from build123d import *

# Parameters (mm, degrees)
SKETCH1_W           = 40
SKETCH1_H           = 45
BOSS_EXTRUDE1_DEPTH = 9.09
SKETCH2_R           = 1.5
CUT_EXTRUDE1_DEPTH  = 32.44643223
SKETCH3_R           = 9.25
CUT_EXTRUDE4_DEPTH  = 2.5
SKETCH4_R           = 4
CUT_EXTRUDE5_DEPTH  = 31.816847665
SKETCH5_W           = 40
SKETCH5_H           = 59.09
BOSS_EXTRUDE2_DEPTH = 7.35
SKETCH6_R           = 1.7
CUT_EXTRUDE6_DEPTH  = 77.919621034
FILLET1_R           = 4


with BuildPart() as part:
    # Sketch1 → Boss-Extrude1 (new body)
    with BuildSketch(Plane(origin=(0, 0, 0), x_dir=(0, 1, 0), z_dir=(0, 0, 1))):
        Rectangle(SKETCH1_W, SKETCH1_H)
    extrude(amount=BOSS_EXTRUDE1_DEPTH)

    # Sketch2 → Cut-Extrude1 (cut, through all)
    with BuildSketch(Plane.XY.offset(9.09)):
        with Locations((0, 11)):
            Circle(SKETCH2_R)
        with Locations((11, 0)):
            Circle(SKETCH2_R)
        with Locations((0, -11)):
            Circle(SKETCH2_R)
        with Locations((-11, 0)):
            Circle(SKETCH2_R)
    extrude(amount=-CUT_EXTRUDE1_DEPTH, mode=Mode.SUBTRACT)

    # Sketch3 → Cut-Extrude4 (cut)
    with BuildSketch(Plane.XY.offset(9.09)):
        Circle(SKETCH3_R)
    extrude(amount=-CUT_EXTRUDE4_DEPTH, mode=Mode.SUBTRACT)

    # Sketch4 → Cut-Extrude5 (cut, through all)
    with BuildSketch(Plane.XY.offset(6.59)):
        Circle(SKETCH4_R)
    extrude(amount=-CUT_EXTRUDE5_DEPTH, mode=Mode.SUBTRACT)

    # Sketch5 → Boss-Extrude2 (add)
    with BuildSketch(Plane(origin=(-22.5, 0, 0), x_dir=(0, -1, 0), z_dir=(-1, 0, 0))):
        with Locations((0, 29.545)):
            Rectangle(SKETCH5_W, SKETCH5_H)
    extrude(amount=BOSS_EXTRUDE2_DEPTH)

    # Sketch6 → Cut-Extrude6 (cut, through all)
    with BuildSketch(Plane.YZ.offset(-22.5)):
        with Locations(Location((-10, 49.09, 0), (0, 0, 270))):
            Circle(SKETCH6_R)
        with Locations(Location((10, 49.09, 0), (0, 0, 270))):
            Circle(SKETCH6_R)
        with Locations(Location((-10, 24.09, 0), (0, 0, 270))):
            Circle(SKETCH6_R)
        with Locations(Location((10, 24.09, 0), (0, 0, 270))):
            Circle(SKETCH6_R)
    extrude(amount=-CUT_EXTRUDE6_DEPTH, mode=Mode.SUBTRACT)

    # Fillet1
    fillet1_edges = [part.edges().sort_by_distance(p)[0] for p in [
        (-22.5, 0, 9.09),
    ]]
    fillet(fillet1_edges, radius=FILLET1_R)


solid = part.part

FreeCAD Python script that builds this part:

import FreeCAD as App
import Part
import Sketcher
from FreeCAD import Vector
Q = App.Units.Quantity


def edges_at(feature, points):
    """Names of the edges that pass closest to the given points."""
    edges = feature.Shape.Edges
    near = lambda p: min(range(len(edges)), key=lambda i: edges[i].distToShape(Part.Vertex(*p))[0])
    return sorted({f"Edge{near(p) + 1}" for p in points})

doc = App.newDocument("Part")
body = doc.addObject("PartDesign::Body", "Body")

sketch1 = body.newObject("Sketcher::SketchObject", "Sketch")
sketch1.AttachmentSupport = (doc.getObject("XY_Plane"), [""])
sketch1.MapMode = "FlatFace"
sketch1.addGeometry([
    Part.LineSegment(Vector(-22, -20, 0), Vector(22, -20, 0)),
    Part.LineSegment(Vector(22, -20, 0), Vector(22, 20, 0)),
    Part.LineSegment(Vector(22, 20, 0), Vector(-22, 20, 0)),
    Part.LineSegment(Vector(-22, 20, 0), Vector(-22, -20, 0)),
], False)
sketch1.addConstraint([
    Sketcher.Constraint("Coincident", 0, 2, 1, 1),
    Sketcher.Constraint("Coincident", 1, 2, 2, 1),
    Sketcher.Constraint("Coincident", 2, 2, 3, 1),
    Sketcher.Constraint("Coincident", 3, 2, 0, 1),
    Sketcher.Constraint("Horizontal", 0),
    Sketcher.Constraint("Vertical", 1),
    Sketcher.Constraint("Horizontal", 2),
    Sketcher.Constraint("Vertical", 3),
    Sketcher.Constraint("Symmetric", 0, 2, 2, 2, -1, 1),
    Sketcher.Constraint("DistanceX", 0, 1, 0, 2, Q("45 mm")),
    Sketcher.Constraint("DistanceY", 1, 1, 1, 2, Q("40 mm")),
])
pad1 = body.newObject("PartDesign::Pad", "Pad")
pad1.Profile = sketch1
pad1.Length = 9.09

sketch2 = body.newObject("Sketcher::SketchObject", "Sketch001")
sketch2.AttachmentSupport = (doc.getObject("XY_Plane"), [""])
sketch2.MapMode = "FlatFace"
sketch2.AttachmentOffset = App.Placement(Vector(0, 0, 9.09), App.Rotation())
sketch2.addGeometry([
    Part.Circle(Vector(0, 11, 0), Vector(0, 0, 1), 1.5),
    Part.Circle(Vector(11, 0, 0), Vector(0, 0, 1), 1.5),
    Part.Circle(Vector(0, -11, 0), Vector(0, 0, 1), 1.5),
    Part.Circle(Vector(-11, 0, 0), Vector(0, 0, 1), 1.5),
], False)
sketch2.addConstraint([
    Sketcher.Constraint("Equal", 0, 1),
    Sketcher.Constraint("Equal", 1, 2),
    Sketcher.Constraint("Equal", 2, 3),
    Sketcher.Constraint("Symmetric", 0, 3, 2, 3, -1, 1),
    Sketcher.Constraint("Symmetric", 1, 3, 3, 3, -1, 1),
    Sketcher.Constraint("PointOnObject", 0, 3, -2),
    Sketcher.Constraint("PointOnObject", 1, 3, -1),
    Sketcher.Constraint("Diameter", 0, Q("3 mm")),
    Sketcher.Constraint("DistanceY", -1, 1, 0, 3, Q("11 mm")),
    Sketcher.Constraint("DistanceX", -1, 1, 1, 3, Q("11 mm")),
])
pocket1 = body.newObject("PartDesign::Pocket", "Pocket")
pocket1.Profile = sketch2
pocket1.Type = "ThroughAll"

sketch3 = body.newObject("Sketcher::SketchObject", "Sketch002")
sketch3.AttachmentSupport = (doc.getObject("XY_Plane"), [""])
sketch3.MapMode = "FlatFace"
sketch3.AttachmentOffset = App.Placement(Vector(0, 0, 9.09), App.Rotation())
sketch3.addGeometry(Part.Circle(Vector(0, 0, 0), Vector(0, 0, 1), 9), False)
sketch3.addConstraint([
    Sketcher.Constraint("Coincident", 0, 3, -1, 1),
    Sketcher.Constraint("Diameter", 0, Q("18.5 mm")),
])
pocket2 = body.newObject("PartDesign::Pocket", "Pocket001")
pocket2.Profile = sketch3
pocket2.Length = 2.5

sketch4 = body.newObject("Sketcher::SketchObject", "Sketch003")
sketch4.AttachmentSupport = (doc.getObject("XY_Plane"), [""])
sketch4.MapMode = "FlatFace"
sketch4.AttachmentOffset = App.Placement(Vector(0, 0, 6.59), App.Rotation())
sketch4.addGeometry(Part.Circle(Vector(0, 0, 0), Vector(0, 0, 1), 4), False)
sketch4.addConstraint([
    Sketcher.Constraint("Coincident", 0, 3, -1, 1),
    Sketcher.Constraint("Diameter", 0, Q("8 mm")),
])
pocket3 = body.newObject("PartDesign::Pocket", "Pocket002")
pocket3.Profile = sketch4
pocket3.Type = "ThroughAll"

sketch5 = body.newObject("Sketcher::SketchObject", "Sketch004")
sketch5.AttachmentSupport = (doc.getObject("YZ_Plane"), [""])
sketch5.MapMode = "FlatFace"
sketch5.AttachmentOffset = App.Placement(Vector(0, 0, -22.5), App.Rotation())
sketch5.addGeometry([
    Part.LineSegment(Vector(20, 59, 0), Vector(20, 0, 0)),
    Part.LineSegment(Vector(20, 0, 0), Vector(-20, 0, 0)),
    Part.LineSegment(Vector(-20, 0, 0), Vector(-20, 59, 0)),
    Part.LineSegment(Vector(-20, 59, 0), Vector(20, 59, 0)),
], False)
sketch5.addConstraint([
    Sketcher.Constraint("Coincident", 0, 2, 1, 1),
    Sketcher.Constraint("Coincident", 1, 2, 2, 1),
    Sketcher.Constraint("Coincident", 2, 2, 3, 1),
    Sketcher.Constraint("Coincident", 3, 2, 0, 1),
    Sketcher.Constraint("Vertical", 0),
    Sketcher.Constraint("Horizontal", 1),
    Sketcher.Constraint("Vertical", 2),
    Sketcher.Constraint("Horizontal", 3),
    Sketcher.Constraint("Symmetric", 0, 2, 1, 2, -1, 1),
    Sketcher.Constraint("DistanceX", 1, 2, 1, 1, Q("40 mm")),
    Sketcher.Constraint("DistanceY", 0, 2, 0, 1, Q("59.09 mm")),
])
pad2 = body.newObject("PartDesign::Pad", "Pad001")
pad2.Profile = sketch5
pad2.Length = 7.35
pad2.Reversed = True

sketch6 = body.newObject("Sketcher::SketchObject", "Sketch005")
sketch6.AttachmentSupport = (doc.getObject("YZ_Plane"), [""])
sketch6.MapMode = "FlatFace"
sketch6.AttachmentOffset = App.Placement(Vector(0, 0, -22.5), App.Rotation())
sketch6.addGeometry([
    Part.Circle(Vector(-10, 49.1, 0), Vector(0, 0, 1), 1.7),
    Part.Circle(Vector(10, 49.1, 0), Vector(0, 0, 1), 1.7),
    Part.Circle(Vector(-10, 24.1, 0), Vector(0, 0, 1), 1.7),
    Part.Circle(Vector(10, 24.1, 0), Vector(0, 0, 1), 1.7),
], False)
sketch6.addConstraint([
    Sketcher.Constraint("Equal", 0, 1),
    Sketcher.Constraint("Equal", 1, 2),
    Sketcher.Constraint("Equal", 2, 3),
    Sketcher.Constraint("Symmetric", 0, 3, 1, 3, -2),
    Sketcher.Constraint("Symmetric", 2, 3, 3, 3, -2),
    Sketcher.Constraint("Vertical", 0, 3, 2, 3),
    Sketcher.Constraint("Diameter", 0, Q("3.4 mm")),
    Sketcher.Constraint("DistanceX", 0, 3, -1, 1, Q("10 mm")),
    Sketcher.Constraint("DistanceY", 2, 3, 0, 3, Q("25 mm")),
    Sketcher.Constraint("DistanceY", -1, 1, 0, 3, Q("49.09 mm")),
])
pocket4 = body.newObject("PartDesign::Pocket", "Pocket003")
pocket4.Profile = sketch6
pocket4.Type = "ThroughAll"
doc.recompute()

fillet = body.newObject("PartDesign::Fillet", "Fillet")
fillet.Base = (pocket4, edges_at(pocket4, [(-22.5, 0, 9.09)]))
fillet.Radius = 4

doc.recompute()
